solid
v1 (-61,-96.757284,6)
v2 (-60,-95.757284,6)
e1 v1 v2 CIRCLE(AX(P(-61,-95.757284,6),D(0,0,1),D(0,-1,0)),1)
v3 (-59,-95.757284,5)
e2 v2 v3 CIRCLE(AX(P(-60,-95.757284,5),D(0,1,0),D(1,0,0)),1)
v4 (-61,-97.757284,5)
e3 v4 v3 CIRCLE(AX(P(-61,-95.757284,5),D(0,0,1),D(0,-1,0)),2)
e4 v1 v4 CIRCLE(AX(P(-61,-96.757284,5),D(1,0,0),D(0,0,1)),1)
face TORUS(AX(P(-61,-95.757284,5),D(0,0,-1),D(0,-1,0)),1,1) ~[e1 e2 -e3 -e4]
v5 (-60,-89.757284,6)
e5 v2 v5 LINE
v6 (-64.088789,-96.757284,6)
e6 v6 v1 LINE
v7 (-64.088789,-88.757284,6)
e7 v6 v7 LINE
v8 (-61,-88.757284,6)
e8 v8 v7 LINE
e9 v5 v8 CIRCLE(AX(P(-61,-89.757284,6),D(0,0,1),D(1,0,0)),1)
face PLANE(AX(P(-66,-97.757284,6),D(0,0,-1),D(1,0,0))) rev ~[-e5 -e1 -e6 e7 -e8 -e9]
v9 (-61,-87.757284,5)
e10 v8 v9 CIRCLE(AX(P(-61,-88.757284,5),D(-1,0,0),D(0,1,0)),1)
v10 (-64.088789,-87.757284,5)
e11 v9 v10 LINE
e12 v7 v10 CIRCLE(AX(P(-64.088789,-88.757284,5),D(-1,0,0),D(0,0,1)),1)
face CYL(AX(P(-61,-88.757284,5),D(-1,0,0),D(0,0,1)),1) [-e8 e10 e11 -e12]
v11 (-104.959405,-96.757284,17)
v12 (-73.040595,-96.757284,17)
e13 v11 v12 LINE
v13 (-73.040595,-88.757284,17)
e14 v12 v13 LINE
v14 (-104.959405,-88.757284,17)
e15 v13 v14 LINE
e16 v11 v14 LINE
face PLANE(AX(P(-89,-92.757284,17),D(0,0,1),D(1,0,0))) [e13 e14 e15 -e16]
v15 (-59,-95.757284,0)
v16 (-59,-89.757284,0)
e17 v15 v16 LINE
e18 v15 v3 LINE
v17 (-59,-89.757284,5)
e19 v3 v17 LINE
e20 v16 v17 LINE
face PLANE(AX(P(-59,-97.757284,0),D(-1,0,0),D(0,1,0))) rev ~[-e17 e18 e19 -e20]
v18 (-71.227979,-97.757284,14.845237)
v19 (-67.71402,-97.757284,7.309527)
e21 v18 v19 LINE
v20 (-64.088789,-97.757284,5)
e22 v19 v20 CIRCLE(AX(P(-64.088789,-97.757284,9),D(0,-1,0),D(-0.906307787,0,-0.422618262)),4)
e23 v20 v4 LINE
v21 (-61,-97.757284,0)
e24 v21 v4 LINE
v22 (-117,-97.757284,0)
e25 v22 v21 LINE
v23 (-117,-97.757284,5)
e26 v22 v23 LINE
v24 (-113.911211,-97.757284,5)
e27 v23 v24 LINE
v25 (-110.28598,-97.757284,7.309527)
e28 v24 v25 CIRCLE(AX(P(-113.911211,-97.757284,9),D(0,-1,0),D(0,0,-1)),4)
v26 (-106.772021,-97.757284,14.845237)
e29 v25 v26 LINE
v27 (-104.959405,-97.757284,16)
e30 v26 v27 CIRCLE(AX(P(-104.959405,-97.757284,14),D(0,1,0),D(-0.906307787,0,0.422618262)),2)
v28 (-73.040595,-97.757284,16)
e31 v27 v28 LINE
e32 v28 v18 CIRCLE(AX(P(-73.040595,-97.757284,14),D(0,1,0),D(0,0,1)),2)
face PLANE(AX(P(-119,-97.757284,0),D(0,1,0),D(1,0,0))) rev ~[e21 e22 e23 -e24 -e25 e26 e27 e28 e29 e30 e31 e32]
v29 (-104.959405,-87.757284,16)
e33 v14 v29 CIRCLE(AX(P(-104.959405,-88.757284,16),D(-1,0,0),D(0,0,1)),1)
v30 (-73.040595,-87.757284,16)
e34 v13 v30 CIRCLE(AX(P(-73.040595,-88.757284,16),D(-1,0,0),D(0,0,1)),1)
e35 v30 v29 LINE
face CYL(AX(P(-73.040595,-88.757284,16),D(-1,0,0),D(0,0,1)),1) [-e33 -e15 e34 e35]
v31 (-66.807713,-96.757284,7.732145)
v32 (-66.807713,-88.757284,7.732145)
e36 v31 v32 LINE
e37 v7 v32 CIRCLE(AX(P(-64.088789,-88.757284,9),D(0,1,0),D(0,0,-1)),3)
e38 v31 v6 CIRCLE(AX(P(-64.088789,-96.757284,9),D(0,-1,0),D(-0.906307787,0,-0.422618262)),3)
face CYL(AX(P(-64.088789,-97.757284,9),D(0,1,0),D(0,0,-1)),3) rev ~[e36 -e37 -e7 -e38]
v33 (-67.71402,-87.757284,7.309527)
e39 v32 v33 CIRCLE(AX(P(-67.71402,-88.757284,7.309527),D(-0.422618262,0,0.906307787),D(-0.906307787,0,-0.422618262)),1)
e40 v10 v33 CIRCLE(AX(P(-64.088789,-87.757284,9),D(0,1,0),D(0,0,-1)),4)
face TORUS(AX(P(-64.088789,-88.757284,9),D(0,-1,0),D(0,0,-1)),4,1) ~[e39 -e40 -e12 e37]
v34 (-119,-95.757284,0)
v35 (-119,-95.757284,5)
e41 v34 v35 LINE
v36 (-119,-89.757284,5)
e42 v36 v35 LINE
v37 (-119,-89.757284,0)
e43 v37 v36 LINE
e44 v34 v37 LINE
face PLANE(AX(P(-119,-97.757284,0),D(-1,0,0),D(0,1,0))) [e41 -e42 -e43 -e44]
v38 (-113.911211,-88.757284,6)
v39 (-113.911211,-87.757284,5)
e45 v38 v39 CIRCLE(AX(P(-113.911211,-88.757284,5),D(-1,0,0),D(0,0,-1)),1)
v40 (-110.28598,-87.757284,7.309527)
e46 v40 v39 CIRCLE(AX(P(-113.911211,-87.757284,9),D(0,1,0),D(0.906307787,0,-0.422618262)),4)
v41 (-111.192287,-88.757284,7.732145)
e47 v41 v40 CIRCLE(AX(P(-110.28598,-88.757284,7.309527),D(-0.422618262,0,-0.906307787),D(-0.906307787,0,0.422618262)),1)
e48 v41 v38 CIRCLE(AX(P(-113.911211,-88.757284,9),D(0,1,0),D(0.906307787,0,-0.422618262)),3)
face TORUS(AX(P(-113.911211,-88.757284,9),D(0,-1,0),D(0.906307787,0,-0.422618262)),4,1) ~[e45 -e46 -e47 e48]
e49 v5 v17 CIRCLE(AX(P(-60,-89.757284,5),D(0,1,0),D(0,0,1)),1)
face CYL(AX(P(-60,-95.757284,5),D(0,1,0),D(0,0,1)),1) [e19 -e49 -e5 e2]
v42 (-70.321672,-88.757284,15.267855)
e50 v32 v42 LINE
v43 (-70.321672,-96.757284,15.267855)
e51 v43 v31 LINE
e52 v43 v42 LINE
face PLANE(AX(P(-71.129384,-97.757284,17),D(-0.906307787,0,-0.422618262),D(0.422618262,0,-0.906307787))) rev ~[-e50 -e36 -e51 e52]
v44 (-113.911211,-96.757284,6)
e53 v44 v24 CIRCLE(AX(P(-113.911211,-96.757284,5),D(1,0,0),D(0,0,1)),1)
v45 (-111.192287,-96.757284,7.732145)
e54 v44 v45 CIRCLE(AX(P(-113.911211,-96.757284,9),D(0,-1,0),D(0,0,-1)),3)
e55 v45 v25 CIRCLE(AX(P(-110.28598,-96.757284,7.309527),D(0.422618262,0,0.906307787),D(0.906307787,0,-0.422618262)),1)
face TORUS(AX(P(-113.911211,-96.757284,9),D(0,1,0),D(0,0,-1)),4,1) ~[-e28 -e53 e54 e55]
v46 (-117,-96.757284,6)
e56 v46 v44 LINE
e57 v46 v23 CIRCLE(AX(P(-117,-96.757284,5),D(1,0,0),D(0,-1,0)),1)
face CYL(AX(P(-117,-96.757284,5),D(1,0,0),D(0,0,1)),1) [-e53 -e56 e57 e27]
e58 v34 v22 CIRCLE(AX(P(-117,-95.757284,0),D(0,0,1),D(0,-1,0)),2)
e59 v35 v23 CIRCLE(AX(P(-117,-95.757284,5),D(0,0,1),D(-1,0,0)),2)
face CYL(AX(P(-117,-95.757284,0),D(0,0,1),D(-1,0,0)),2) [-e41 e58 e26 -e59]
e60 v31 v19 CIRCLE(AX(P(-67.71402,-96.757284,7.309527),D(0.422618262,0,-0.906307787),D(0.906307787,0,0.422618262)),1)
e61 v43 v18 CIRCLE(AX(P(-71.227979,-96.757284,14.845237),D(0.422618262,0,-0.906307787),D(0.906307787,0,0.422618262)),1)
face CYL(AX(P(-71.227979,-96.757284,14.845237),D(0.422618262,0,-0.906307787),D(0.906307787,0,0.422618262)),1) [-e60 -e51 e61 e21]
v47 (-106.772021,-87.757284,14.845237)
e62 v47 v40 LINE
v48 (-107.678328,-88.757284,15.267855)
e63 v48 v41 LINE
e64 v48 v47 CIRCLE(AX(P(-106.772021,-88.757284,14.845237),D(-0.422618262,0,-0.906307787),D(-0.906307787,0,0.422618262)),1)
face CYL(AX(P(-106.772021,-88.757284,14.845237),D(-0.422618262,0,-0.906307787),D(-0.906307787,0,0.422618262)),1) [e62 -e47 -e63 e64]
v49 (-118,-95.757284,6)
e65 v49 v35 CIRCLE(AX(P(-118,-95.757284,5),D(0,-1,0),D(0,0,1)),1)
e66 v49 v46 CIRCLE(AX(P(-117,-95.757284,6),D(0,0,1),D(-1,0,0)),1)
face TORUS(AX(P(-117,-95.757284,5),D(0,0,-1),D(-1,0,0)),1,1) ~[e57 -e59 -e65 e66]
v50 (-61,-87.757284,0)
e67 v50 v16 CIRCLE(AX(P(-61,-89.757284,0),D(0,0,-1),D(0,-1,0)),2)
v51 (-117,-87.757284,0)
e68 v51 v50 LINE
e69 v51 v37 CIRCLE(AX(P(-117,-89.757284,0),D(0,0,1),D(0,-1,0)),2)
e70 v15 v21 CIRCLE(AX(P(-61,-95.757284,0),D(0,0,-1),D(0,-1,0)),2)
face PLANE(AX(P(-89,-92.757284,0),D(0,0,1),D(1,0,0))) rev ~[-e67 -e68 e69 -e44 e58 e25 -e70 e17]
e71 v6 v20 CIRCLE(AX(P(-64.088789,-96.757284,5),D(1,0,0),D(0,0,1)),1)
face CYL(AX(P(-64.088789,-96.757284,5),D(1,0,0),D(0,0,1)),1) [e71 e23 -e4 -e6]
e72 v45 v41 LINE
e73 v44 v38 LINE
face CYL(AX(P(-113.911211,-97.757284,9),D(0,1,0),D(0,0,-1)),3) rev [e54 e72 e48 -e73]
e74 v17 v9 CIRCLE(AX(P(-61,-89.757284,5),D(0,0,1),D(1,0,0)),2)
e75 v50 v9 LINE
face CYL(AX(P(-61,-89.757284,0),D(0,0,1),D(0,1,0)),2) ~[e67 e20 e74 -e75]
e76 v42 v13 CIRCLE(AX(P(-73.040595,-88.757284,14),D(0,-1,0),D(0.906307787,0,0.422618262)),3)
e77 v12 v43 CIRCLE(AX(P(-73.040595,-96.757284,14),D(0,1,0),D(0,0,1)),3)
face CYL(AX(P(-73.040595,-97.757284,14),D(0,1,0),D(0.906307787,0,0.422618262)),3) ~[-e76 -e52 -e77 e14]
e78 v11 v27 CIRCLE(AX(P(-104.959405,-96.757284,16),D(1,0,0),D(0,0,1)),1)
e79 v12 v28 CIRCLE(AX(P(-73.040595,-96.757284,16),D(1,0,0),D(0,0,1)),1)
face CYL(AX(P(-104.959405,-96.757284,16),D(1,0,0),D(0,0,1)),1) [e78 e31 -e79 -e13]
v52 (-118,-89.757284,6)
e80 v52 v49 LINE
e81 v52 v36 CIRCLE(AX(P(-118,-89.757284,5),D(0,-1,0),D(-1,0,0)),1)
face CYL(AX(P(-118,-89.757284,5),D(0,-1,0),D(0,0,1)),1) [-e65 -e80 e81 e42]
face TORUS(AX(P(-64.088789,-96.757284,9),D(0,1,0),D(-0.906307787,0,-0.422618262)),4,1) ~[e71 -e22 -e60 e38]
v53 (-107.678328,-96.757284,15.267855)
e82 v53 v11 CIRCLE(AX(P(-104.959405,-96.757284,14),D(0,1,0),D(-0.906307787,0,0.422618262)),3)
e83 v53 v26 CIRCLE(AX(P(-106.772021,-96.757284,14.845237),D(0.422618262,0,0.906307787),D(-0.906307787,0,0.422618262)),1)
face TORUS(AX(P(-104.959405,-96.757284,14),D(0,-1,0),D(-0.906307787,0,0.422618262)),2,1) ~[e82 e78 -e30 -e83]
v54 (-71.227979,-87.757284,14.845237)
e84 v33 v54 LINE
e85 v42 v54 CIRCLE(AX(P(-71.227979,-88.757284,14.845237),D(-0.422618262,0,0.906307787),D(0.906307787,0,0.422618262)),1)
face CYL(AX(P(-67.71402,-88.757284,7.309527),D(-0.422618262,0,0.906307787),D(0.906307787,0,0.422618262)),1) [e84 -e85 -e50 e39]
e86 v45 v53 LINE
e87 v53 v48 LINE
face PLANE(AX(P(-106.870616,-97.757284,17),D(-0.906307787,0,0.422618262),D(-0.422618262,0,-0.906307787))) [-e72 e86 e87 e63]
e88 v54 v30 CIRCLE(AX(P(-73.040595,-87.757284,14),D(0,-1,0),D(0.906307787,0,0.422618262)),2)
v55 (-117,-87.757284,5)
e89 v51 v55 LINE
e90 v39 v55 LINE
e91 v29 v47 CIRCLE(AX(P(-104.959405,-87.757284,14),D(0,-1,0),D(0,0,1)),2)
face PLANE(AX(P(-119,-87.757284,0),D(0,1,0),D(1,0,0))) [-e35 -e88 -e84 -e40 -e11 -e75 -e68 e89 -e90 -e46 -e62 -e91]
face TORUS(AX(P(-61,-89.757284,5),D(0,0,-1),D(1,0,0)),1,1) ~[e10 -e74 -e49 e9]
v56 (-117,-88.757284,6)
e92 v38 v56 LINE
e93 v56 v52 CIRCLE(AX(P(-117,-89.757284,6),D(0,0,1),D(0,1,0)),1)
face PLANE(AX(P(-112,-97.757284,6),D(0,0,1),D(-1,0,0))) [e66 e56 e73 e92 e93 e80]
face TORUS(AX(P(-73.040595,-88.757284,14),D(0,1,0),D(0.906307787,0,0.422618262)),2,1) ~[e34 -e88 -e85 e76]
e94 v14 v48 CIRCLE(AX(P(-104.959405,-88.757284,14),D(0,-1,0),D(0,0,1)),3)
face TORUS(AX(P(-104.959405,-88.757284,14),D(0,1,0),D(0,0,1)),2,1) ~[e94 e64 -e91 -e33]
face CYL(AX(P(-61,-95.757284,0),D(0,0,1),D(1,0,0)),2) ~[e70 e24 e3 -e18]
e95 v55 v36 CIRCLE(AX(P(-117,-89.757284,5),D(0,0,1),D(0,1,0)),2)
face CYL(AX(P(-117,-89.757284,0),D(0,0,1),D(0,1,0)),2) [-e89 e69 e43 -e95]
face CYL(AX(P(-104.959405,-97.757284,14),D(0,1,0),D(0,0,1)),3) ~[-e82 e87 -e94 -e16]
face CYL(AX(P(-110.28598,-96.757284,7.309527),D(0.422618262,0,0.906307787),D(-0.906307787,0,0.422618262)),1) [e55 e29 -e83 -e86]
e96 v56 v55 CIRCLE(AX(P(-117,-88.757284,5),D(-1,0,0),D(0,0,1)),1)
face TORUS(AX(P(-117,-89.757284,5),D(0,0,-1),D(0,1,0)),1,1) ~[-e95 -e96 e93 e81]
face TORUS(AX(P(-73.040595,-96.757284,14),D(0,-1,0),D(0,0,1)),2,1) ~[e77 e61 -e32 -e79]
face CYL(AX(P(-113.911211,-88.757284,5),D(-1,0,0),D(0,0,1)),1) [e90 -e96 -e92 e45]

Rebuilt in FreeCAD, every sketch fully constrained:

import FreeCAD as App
import Part
import Sketcher
from FreeCAD import Vector
Q = App.Units.Quantity


def edges_at(feature, points):
    """Names of the edges that pass closest to the given points."""
    edges = feature.Shape.Edges
    near = lambda p: min(range(len(edges)), key=lambda i: edges[i].distToShape(Part.Vertex(*p))[0])
    return sorted({f"Edge{near(p) + 1}" for p in points})


def add_polygon(sketch, points):
    """Adds a closed chain of lines whose ends are joined by coincident constraints."""
    first, n = sketch.GeometryCount, len(points)
    for a, b in zip(points, points[1:] + points[:1]):
        sketch.addGeometry(Part.LineSegment(App.Vector(*a, 0), App.Vector(*b, 0)), False)
    for i in range(n):
        sketch.addConstraint(Sketcher.Constraint("Coincident", first + i, 2, first + (i + 1) % n, 1))

doc = App.newDocument("Part")
body = doc.addObject("PartDesign::Body", "Body")

sketch1 = body.newObject("Sketcher::SketchObject", "Sketch")
sketch1.AttachmentSupport = (doc.getObject("XY_Plane"), [""])
sketch1.MapMode = "FlatFace"
add_polygon(sketch1, [(-119, -87.757284), (-119, -97.757284), (-59, -97.757284), (-59, -87.757284)])
sketch1.addConstraint([
    Sketcher.Constraint("Vertical", 0),
    Sketcher.Constraint("Horizontal", 1),
    Sketcher.Constraint("Vertical", 2),
    Sketcher.Constraint("Horizontal", 3),
    Sketcher.Constraint("DistanceX", 1, 1, 1, 2, Q("60 mm")),
    Sketcher.Constraint("DistanceY", 0, 2, 0, 1, Q("10 mm")),
    Sketcher.Constraint("DistanceX", 0, 2, -1, 1, Q("119 mm")),
    Sketcher.Constraint("DistanceY", 0, 2, -1, 1, Q("97.757284 mm")),
])
pad1 = body.newObject("PartDesign::Pad", "Pad")
pad1.Profile = sketch1
pad1.Length = 17

sketch2 = body.newObject("Sketcher::SketchObject", "Sketch001")
sketch2.AttachmentSupport = (doc.getObject("XZ_Plane"), [""])
sketch2.MapMode = "FlatFace"
sketch2.AttachmentOffset = App.Placement(Vector(0, 0, 97.757284), App.Rotation())
add_polygon(sketch2, [(-112, 6), (-106.870616, 17), (-119, 17), (-119, 6)])
sketch2.addConstraint([
    Sketcher.Constraint("Horizontal", 1),
    Sketcher.Constraint("Vertical", 2),
    Sketcher.Constraint("Horizontal", 3),
    Sketcher.Constraint("DistanceX", 3, 1, 3, 2, Q("7 mm")),
    Sketcher.Constraint("DistanceY", 2, 2, 2, 1, Q("11 mm")),
    Sketcher.Constraint("Angle", 0, Q("65 deg")),
    Sketcher.Constraint("DistanceY", -1, 1, 0, 2, Q("17 mm")),
    Sketcher.Constraint("DistanceX", 1, 2, -1, 1, Q("119 mm")),
])
pocket1 = body.newObject("PartDesign::Pocket", "Pocket")
pocket1.Profile = sketch2
pocket1.Type = "UpToFirst"

sketch3 = body.newObject("Sketcher::SketchObject", "Sketch002")
sketch3.AttachmentSupport = (doc.getObject("XZ_Plane"), [""])
sketch3.MapMode = "FlatFace"
sketch3.AttachmentOffset = App.Placement(Vector(0, 0, 97.757284), App.Rotation())
add_polygon(sketch3, [(-59, 17), (-71.129384, 17), (-66, 6), (-59, 6)])
sketch3.addConstraint([
    Sketcher.Constraint("Horizontal", 0),
    Sketcher.Constraint("Horizontal", 2),
    Sketcher.Constraint("Vertical", 3),
    Sketcher.Constraint("DistanceX", 2, 1, 2, 2, Q("7 mm")),
    Sketcher.Constraint("DistanceY", 3, 1, 3, 2, Q("11 mm")),
    Sketcher.Constraint("Angle", 1, Q("-65 deg")),
    Sketcher.Constraint("DistanceY", -1, 1, 0, 2, Q("17 mm")),
    Sketcher.Constraint("DistanceX", 1, 2, -1, 1, Q("66 mm")),
])
pocket2 = body.newObject("PartDesign::Pocket", "Pocket001")
pocket2.Profile = sketch3
pocket2.Type = "UpToFirst"
doc.recompute()

fillet = body.newObject("PartDesign::Fillet", "Fillet")
fillet.Base = (pocket2, edges_at(pocket2, [
    (-66, -92.757, 6),
    (-71.129, -92.757, 17),
    (-106.871, -92.757, 17),
    (-112, -92.757, 6),
]))
fillet.Radius = 3
doc.recompute()

fillet2 = body.newObject("PartDesign::Fillet", "Fillet001")
fillet2.Base = (fillet, edges_at(fillet, [
    (-59, -97.757, 3),
    (-119, -97.757, 3),
    (-59, -87.757, 3),
    (-119, -87.757, 3),
]))
fillet2.Radius = 2
doc.recompute()

fillet3 = body.newObject("PartDesign::Fillet", "Fillet002")
fillet3.Base = (fillet2, edges_at(fillet2, [
    (-62.544, -97.757, 6),
    (-65.701, -97.757, 6.47),
    (-68.565, -97.757, 11.5),
    (-71.429, -97.757, 16.53),
    (-115.456, -97.757, 6),
    (-89, -97.757, 17),
    (-112.299, -97.757, 6.47),
    (-106.571, -97.757, 16.53),
    (-109.435, -97.757, 11.5),
    (-59.586, -97.171, 6),
    (-59, -92.757, 6),
    (-62.544, -87.757, 6),
    (-59.586, -88.343, 6),
    (-65.701, -87.757, 6.47),
    (-68.565, -87.757, 11.5),
    (-118.414, -97.171, 6),
    (-71.429, -87.757, 16.53),
    (-119, -92.757, 6),
    (-115.456, -87.757, 6),
    (-118.414, -88.343, 6),
    (-89, -87.757, 17),
    (-112.299, -87.757, 6.47),
    (-106.571, -87.757, 16.53),
    (-109.435, -87.757, 11.5),
]))
fillet3.Radius = 1

doc.recompute()
